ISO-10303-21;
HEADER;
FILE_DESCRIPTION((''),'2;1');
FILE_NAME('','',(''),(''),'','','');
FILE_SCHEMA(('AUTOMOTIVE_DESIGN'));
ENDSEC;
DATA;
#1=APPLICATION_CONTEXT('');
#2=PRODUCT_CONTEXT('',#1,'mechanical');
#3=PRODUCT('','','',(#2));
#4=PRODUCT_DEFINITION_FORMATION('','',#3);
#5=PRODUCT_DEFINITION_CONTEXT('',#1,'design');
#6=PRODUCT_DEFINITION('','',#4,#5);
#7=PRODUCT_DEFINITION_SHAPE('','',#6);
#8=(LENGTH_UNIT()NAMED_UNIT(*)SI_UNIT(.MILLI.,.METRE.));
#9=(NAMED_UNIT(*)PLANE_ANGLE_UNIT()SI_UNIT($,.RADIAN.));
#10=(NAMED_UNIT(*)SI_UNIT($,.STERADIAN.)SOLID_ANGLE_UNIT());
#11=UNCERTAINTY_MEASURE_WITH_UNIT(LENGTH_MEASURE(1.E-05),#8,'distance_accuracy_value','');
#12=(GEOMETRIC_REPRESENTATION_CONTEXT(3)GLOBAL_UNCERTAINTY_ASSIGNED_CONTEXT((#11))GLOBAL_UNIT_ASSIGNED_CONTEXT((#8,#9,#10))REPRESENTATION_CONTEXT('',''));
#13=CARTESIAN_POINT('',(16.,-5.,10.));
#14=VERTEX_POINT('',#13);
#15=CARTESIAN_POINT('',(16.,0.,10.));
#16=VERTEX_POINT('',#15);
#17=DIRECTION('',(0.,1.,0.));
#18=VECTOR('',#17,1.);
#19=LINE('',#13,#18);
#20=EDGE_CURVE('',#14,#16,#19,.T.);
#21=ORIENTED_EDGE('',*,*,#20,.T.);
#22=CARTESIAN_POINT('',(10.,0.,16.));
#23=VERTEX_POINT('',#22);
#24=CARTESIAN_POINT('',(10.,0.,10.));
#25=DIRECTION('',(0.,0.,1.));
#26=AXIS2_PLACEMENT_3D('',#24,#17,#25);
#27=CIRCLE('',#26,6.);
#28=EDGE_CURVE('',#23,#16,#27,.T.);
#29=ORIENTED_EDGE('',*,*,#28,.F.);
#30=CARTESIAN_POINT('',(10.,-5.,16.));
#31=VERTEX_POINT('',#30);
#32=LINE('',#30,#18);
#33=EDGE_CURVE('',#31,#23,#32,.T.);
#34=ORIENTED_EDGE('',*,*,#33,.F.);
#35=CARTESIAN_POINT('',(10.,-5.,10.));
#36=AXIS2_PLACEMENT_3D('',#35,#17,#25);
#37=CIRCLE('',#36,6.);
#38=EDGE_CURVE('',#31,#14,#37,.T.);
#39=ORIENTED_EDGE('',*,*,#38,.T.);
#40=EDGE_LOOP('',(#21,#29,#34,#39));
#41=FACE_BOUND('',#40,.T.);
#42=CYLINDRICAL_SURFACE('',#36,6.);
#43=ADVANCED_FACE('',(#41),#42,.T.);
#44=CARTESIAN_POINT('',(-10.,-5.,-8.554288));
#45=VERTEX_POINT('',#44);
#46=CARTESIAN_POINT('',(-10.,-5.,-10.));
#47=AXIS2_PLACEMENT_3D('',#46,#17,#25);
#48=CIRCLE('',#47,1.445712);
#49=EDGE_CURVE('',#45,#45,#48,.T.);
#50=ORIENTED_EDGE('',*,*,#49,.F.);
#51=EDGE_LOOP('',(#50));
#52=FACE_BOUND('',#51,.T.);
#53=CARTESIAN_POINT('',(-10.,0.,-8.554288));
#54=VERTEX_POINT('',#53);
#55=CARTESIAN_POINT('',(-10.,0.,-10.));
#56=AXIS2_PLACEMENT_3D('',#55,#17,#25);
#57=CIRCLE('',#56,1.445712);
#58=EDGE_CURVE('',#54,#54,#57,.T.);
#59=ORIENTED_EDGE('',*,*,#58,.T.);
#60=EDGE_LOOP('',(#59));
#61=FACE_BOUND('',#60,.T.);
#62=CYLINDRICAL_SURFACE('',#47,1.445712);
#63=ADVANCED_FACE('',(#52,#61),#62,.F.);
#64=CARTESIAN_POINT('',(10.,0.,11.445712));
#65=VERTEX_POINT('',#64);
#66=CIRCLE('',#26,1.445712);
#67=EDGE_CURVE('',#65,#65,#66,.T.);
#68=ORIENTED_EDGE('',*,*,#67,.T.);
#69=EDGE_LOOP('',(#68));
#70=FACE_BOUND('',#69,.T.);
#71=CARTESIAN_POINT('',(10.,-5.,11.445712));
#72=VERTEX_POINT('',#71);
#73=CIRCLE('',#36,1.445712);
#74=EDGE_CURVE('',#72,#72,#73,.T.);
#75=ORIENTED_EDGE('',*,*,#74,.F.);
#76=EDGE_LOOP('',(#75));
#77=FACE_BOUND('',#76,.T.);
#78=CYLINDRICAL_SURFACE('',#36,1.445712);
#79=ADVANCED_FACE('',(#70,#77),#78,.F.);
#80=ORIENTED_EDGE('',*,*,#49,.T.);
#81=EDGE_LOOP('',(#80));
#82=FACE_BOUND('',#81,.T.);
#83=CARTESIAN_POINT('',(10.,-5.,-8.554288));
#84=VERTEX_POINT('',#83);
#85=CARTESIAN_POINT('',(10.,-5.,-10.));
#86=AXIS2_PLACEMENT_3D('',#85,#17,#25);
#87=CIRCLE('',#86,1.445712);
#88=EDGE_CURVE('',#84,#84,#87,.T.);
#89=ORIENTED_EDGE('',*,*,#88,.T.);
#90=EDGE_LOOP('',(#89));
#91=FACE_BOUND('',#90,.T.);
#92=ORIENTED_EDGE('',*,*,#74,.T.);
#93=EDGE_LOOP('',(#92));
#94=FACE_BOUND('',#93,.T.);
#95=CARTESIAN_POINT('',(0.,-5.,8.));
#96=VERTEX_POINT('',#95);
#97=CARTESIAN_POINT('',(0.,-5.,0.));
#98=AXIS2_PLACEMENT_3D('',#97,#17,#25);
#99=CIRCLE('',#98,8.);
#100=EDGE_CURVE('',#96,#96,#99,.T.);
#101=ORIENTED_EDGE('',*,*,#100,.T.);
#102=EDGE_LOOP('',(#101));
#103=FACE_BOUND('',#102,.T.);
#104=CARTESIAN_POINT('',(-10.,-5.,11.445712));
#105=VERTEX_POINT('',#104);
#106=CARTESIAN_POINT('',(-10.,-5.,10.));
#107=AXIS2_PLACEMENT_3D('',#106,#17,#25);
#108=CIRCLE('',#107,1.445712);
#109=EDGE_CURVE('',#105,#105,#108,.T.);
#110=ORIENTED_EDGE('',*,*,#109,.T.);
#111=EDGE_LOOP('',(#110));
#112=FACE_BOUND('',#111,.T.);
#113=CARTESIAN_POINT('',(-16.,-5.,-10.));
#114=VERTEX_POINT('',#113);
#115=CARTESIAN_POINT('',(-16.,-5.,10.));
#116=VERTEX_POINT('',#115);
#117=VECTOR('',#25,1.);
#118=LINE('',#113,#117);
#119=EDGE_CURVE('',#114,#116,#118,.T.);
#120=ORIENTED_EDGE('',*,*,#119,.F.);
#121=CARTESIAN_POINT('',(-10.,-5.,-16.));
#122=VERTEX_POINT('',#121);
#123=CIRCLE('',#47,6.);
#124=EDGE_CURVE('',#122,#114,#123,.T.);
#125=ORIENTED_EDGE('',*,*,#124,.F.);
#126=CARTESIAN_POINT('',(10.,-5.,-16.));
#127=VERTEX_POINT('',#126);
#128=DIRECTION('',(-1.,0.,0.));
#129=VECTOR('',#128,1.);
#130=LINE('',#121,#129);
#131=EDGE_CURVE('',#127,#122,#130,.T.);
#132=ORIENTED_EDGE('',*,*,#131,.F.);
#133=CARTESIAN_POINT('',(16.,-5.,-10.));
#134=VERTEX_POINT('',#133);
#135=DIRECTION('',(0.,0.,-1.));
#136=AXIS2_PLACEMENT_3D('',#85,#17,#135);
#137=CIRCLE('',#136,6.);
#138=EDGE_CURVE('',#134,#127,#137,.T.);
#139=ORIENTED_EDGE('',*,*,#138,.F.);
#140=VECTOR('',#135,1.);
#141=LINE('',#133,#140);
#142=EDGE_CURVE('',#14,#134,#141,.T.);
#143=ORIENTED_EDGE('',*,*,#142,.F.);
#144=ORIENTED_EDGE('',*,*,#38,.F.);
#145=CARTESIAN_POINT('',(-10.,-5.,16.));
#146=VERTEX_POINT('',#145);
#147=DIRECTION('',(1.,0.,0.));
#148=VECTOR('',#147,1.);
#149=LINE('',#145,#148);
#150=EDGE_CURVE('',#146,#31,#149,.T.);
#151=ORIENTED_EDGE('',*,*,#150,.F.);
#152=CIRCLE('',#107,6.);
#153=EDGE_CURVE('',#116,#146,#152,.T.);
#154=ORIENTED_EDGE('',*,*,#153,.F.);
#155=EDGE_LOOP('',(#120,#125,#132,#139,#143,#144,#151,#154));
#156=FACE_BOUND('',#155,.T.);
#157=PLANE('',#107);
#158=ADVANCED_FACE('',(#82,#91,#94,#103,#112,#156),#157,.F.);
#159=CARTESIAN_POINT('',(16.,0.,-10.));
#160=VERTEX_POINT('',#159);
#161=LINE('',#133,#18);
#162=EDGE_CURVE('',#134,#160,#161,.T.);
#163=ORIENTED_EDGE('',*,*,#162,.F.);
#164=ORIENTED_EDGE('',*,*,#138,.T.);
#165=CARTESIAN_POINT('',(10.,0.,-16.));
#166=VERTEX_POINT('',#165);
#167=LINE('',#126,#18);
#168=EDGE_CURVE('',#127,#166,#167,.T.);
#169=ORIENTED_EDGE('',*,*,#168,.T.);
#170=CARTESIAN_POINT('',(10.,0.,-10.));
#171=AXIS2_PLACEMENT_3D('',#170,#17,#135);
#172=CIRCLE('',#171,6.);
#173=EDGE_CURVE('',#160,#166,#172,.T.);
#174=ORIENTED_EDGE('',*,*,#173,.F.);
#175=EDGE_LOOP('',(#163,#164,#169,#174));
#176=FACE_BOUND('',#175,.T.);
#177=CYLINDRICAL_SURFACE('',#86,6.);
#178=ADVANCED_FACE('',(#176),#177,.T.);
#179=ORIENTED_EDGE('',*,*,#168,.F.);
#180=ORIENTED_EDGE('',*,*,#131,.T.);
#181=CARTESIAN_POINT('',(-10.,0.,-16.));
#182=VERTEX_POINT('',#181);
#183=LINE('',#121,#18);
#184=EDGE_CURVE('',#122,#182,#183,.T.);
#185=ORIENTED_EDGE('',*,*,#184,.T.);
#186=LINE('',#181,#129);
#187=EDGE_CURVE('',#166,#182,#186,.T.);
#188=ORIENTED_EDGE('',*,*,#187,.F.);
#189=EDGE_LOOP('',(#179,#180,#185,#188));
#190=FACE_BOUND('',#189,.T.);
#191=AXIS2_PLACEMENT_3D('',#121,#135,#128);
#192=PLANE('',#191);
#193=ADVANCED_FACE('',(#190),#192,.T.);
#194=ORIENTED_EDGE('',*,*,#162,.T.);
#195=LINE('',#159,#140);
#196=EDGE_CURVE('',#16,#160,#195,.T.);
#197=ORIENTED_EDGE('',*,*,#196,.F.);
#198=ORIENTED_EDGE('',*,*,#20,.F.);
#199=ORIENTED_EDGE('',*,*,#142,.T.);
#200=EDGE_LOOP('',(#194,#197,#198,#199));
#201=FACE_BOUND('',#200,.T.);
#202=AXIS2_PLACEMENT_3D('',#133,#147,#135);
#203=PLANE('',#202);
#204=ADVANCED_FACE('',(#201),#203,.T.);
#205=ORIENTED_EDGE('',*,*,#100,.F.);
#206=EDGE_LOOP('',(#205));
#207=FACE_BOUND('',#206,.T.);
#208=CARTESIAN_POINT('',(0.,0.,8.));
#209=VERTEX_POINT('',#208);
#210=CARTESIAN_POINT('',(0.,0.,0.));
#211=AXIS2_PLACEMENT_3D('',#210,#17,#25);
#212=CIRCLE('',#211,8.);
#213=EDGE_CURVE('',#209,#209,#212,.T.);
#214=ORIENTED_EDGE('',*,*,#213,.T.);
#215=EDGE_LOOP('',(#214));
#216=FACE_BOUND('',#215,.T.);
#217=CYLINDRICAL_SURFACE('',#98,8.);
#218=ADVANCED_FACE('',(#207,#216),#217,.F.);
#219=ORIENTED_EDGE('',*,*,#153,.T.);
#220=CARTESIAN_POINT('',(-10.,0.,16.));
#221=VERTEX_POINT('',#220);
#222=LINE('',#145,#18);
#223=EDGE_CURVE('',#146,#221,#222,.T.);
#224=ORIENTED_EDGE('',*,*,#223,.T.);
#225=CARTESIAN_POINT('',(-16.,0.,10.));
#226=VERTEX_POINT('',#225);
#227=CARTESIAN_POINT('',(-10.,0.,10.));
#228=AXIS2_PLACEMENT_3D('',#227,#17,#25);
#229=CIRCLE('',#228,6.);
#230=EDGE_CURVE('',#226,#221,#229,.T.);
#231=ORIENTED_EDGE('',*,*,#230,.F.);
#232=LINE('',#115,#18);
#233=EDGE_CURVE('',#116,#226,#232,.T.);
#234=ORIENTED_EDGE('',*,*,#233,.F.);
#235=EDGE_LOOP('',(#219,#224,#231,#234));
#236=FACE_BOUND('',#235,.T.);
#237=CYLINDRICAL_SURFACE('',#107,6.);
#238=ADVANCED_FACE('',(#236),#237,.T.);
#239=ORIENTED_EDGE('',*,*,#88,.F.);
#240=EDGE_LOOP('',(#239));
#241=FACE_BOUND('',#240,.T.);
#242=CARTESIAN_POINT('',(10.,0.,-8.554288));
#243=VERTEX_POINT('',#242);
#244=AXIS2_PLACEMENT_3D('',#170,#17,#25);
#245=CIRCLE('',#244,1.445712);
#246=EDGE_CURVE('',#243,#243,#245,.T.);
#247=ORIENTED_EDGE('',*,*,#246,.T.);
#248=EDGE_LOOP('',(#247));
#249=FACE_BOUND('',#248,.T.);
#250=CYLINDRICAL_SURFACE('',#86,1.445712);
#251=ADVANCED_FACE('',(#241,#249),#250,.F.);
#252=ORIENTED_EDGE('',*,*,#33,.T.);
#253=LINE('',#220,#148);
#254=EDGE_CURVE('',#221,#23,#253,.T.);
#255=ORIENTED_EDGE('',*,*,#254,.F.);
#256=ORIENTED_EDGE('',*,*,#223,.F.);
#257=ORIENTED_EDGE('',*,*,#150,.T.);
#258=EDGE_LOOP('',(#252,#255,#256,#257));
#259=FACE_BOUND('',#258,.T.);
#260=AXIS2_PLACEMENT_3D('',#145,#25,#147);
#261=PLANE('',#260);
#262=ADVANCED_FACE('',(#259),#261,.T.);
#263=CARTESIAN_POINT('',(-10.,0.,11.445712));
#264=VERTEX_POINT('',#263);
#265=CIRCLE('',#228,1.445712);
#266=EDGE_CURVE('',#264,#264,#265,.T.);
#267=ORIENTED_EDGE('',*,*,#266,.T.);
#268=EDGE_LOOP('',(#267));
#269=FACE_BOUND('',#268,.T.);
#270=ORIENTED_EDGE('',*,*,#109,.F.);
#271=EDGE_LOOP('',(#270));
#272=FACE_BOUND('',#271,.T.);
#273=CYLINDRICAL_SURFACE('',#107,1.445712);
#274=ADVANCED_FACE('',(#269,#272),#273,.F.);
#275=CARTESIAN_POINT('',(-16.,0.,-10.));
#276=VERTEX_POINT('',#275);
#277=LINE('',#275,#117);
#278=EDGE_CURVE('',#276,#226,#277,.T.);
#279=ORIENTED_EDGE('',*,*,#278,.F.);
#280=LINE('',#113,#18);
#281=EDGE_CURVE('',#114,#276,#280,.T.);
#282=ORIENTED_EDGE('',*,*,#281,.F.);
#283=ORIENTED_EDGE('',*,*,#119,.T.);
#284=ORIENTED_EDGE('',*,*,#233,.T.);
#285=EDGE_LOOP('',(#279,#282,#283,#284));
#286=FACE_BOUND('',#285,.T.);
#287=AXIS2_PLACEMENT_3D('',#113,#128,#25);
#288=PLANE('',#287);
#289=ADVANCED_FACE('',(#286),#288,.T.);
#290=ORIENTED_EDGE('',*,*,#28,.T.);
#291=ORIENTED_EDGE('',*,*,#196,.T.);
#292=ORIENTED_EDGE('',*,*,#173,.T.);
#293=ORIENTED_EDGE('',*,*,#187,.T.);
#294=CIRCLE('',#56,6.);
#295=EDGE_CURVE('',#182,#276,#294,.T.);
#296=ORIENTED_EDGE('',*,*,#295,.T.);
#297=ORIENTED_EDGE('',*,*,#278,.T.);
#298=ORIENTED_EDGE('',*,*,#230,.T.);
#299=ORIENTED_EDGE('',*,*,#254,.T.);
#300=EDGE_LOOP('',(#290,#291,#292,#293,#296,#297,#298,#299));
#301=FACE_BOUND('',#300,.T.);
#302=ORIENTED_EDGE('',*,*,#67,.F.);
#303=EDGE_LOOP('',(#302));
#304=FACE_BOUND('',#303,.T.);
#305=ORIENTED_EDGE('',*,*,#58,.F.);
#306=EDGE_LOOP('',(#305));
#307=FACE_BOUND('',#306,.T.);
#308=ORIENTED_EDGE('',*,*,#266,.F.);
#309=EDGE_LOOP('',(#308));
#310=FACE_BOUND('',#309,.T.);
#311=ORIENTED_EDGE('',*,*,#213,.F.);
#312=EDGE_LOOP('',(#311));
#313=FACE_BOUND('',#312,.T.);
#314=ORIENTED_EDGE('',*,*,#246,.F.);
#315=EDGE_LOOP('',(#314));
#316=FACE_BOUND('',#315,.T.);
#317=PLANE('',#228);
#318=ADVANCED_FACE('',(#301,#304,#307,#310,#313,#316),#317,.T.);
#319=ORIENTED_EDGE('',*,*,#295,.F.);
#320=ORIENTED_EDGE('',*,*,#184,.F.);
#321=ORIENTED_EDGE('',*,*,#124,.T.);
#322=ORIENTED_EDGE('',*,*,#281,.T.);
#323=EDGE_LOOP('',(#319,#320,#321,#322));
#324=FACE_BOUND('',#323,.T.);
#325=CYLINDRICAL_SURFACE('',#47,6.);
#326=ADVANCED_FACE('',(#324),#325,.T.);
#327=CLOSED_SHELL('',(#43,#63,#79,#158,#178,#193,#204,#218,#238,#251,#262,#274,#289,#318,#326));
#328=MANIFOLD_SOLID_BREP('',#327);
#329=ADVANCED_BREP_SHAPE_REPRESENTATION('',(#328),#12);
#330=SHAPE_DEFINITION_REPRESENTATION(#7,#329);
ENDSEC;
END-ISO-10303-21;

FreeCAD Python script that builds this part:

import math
import FreeCAD as App
import Part
import Sketcher
Q = App.Units.Quantity

doc = App.newDocument("Part")
body = doc.addObject("PartDesign::Body", "Body")

# Sketch on XZ plane
sketch1 = body.newObject("Sketcher::SketchObject", "Sketch")
sketch1.AttachmentSupport = (doc.getObject("XZ_Plane"), [""])
sketch1.MapMode = "FlatFace"
sketch1.addGeometry(Part.LineSegment(App.Vector(10, -16, 0), App.Vector(-10, -16, 0)), False)
sketch1.addGeometry(Part.ArcOfCircle(Part.Circle(App.Vector(-10, -10, 0), App.Vector(0, 0, 1), 6), math.radians(180), math.radians(270)), False)
sketch1.addGeometry(Part.LineSegment(App.Vector(-16, -10, 0), App.Vector(-16, 10, 0)), False)
sketch1.addGeometry(Part.ArcOfCircle(Part.Circle(App.Vector(-10, 10, 0), App.Vector(0, 0, 1), 6), math.radians(90), math.radians(180)), False)
sketch1.addGeometry(Part.LineSegment(App.Vector(-10, 16, 0), App.Vector(10, 16, 0)), False)
sketch1.addGeometry(Part.ArcOfCircle(Part.Circle(App.Vector(10, 10, 0), App.Vector(0, 0, 1), 6), math.radians(0), math.radians(90)), False)
sketch1.addGeometry(Part.LineSegment(App.Vector(16, 10, 0), App.Vector(16, -10, 0)), False)
sketch1.addGeometry(Part.ArcOfCircle(Part.Circle(App.Vector(10, -10, 0), App.Vector(0, 0, 1), 6), math.radians(-90), math.radians(0)), False)
sketch1.addGeometry(Part.Circle(App.Vector(10, 10, 0), App.Vector(0, 0, 1), 1.4), False)
sketch1.addGeometry(Part.Circle(App.Vector(-10, 10, 0), App.Vector(0, 0, 1), 1.4), False)
sketch1.addGeometry(Part.Circle(App.Vector(10, -10, 0), App.Vector(0, 0, 1), 1.4), False)
sketch1.addGeometry(Part.Circle(App.Vector(0, 0, 0), App.Vector(0, 0, 1), 8), False)
sketch1.addGeometry(Part.Circle(App.Vector(-10, -10, 0), App.Vector(0, 0, 1), 1.4), False)
sketch1.addConstraint(Sketcher.Constraint("Tangent", 0, 2, 1, 2))
sketch1.addConstraint(Sketcher.Constraint("Tangent", 1, 1, 2, 1))
sketch1.addConstraint(Sketcher.Constraint("Tangent", 2, 2, 3, 2))
sketch1.addConstraint(Sketcher.Constraint("Tangent", 3, 1, 4, 1))
sketch1.addConstraint(Sketcher.Constraint("Tangent", 4, 2, 5, 2))
sketch1.addConstraint(Sketcher.Constraint("Tangent", 5, 1, 6, 1))
sketch1.addConstraint(Sketcher.Constraint("Tangent", 6, 2, 7, 2))
sketch1.addConstraint(Sketcher.Constraint("Tangent", 7, 1, 0, 1))
sketch1.addConstraint(Sketcher.Constraint("Horizontal", 0))
sketch1.addConstraint(Sketcher.Constraint("Vertical", 2))
sketch1.addConstraint(Sketcher.Constraint("Horizontal", 4))
sketch1.addConstraint(Sketcher.Constraint("Vertical", 6))
sketch1.addConstraint(Sketcher.Constraint("Coincident", 11, 3, -1, 1))
sketch1.addConstraint(Sketcher.Constraint("Coincident", 8, 3, 5, 3))
sketch1.addConstraint(Sketcher.Constraint("Coincident", 9, 3, 3, 3))
sketch1.addConstraint(Sketcher.Constraint("Coincident", 10, 3, 7, 3))
sketch1.addConstraint(Sketcher.Constraint("Coincident", 12, 3, 1, 3))
sketch1.addConstraint(Sketcher.Constraint("Equal", 1, 3))
sketch1.addConstraint(Sketcher.Constraint("Equal", 3, 5))
sketch1.addConstraint(Sketcher.Constraint("Equal", 5, 7))
sketch1.addConstraint(Sketcher.Constraint("Equal", 8, 9))
sketch1.addConstraint(Sketcher.Constraint("Equal", 9, 10))
sketch1.addConstraint(Sketcher.Constraint("Equal", 10, 12))
sketch1.addConstraint(Sketcher.Constraint("Symmetric", 1, 3, 5, 3, -1, 1))
sketch1.addConstraint(Sketcher.Constraint("Equal", 4, 2))
sketch1.addConstraint(Sketcher.Constraint("Diameter", 11, Q("16 mm")))
sketch1.addConstraint(Sketcher.Constraint("Radius", 1, Q("6 mm")))
sketch1.addConstraint(Sketcher.Constraint("DistanceX", 0, 2, 0, 1, Q("20 mm")))
sketch1.addConstraint(Sketcher.Constraint("Diameter", 8, Q("2.891424 mm")))
pad1 = body.newObject("PartDesign::Pad", "Pad")
pad1.Profile = sketch1
pad1.Length = 5

doc.recompute()
